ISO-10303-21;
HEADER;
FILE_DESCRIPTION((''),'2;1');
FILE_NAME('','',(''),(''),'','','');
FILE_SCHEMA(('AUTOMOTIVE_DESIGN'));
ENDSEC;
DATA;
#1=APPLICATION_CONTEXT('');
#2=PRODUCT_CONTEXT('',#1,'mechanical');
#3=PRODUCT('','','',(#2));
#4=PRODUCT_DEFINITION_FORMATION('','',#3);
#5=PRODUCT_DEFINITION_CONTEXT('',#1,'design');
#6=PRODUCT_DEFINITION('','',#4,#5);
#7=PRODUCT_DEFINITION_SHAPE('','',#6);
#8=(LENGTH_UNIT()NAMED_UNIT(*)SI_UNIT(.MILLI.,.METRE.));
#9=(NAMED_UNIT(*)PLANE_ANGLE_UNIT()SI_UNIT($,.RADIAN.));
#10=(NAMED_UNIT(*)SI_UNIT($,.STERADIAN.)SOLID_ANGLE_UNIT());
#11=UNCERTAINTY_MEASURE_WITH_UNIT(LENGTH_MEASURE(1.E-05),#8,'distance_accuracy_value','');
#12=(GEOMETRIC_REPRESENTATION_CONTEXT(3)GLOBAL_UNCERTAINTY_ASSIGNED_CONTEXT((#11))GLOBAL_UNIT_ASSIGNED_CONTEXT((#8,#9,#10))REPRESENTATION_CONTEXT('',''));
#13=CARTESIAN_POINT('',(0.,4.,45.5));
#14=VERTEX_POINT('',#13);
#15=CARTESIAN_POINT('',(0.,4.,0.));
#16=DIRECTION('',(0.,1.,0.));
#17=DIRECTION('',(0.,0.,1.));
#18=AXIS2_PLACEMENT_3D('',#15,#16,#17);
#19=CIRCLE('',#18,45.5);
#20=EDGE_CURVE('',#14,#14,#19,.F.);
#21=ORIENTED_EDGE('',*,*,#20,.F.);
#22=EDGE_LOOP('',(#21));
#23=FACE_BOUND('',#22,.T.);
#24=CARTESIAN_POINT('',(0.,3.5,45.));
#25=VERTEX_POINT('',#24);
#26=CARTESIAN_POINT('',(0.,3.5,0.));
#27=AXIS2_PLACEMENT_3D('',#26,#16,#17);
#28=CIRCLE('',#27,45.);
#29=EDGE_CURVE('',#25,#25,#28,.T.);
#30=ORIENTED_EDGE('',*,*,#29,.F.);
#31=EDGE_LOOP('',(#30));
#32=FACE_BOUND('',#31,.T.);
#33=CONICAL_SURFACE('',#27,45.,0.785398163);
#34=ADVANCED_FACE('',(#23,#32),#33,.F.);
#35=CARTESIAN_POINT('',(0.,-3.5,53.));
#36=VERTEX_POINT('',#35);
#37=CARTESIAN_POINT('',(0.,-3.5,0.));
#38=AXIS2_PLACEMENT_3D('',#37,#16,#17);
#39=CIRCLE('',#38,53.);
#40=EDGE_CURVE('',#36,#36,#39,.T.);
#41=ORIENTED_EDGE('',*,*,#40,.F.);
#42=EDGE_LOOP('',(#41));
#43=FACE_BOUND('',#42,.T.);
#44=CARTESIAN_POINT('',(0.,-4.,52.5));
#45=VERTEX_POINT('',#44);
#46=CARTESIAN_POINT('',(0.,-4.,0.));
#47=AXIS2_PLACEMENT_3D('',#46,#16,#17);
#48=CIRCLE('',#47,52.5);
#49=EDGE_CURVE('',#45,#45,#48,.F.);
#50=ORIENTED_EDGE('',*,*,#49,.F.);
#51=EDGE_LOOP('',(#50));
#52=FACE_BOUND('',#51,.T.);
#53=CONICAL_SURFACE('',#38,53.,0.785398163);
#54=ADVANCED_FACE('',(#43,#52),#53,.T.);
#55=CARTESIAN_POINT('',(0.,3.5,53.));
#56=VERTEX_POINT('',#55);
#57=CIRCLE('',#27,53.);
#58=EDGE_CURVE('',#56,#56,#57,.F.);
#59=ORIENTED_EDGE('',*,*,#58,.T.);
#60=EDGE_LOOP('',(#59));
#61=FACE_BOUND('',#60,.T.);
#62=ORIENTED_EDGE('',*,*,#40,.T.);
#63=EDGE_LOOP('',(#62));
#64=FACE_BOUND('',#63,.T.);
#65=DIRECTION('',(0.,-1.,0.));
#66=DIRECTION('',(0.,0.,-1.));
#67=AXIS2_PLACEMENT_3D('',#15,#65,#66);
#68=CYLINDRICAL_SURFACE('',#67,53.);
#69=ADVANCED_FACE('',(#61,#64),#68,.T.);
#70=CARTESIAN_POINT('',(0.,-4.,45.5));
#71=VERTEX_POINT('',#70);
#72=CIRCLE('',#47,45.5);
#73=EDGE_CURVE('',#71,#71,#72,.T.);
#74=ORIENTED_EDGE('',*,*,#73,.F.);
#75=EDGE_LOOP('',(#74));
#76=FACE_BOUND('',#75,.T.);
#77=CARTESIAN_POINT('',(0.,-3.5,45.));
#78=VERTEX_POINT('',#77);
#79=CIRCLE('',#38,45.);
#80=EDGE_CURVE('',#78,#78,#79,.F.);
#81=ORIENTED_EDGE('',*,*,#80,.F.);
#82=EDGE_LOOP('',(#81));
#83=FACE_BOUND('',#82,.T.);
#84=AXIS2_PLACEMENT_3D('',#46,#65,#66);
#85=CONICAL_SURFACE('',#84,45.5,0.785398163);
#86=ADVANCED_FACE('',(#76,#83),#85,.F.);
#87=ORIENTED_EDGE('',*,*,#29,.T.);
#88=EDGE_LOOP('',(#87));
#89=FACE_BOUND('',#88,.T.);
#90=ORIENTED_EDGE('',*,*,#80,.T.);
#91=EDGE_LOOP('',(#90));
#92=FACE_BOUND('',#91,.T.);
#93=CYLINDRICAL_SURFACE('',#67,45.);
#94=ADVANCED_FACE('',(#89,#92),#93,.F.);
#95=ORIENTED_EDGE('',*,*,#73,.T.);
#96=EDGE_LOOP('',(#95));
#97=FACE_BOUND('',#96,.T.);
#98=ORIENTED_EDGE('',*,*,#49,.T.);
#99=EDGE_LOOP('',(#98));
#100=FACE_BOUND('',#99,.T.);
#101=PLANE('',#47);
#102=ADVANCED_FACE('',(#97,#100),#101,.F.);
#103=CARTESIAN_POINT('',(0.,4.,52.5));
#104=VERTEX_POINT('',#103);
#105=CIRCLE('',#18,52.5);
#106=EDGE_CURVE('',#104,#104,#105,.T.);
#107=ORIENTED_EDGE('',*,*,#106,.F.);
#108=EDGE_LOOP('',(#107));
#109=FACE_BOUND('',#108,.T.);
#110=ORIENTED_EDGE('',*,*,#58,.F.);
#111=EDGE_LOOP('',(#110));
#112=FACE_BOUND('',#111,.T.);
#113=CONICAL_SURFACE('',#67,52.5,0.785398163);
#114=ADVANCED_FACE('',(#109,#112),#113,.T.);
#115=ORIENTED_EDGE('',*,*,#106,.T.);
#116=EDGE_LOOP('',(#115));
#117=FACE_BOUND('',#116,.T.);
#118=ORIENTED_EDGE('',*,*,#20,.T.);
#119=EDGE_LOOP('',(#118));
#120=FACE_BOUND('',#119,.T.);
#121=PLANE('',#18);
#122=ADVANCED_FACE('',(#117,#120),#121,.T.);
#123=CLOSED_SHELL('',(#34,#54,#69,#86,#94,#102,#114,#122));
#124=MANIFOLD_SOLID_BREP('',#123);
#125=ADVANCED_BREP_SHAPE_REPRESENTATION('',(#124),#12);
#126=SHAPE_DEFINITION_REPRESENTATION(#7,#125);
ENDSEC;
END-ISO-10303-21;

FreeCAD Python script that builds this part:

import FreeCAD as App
import Part
import Sketcher


def edges_at(feature, points):
    """Names of the edges that pass closest to the given points."""
    edges = feature.Shape.Edges
    near = lambda p: min(range(len(edges)), key=lambda i: edges[i].distToShape(Part.Vertex(*p))[0])
    return sorted({f"Edge{near(p) + 1}" for p in points})

doc = App.newDocument("Part")
body = doc.addObject("PartDesign::Body", "Body")

sketch1 = body.newObject("Sketcher::SketchObject", "Sketch")
sketch1.AttachmentSupport = (doc.getObject("XZ_Plane"), [""])
sketch1.MapMode = "FlatFace"
sketch1.addGeometry([
    Part.Circle(App.Vector(0, 0, 0), App.Vector(0, 0, 1), 53),
    Part.Circle(App.Vector(0, 0, 0), App.Vector(0, 0, 1), 45),
], False)
sketch1.addConstraint([
    Sketcher.Constraint("Coincident", 0, 3, -1, 1),
    Sketcher.Constraint("Coincident", 1, 3, -1, 1),
    Sketcher.Constraint("Diameter", 0, 106.0),
    Sketcher.Constraint("Diameter", 1, 90.0),
])
pad1 = body.newObject("PartDesign::Pad", "Pad")
pad1.Profile = sketch1
pad1.Length = 8
pad1.Midplane = True
doc.recompute()

chamfer = body.newObject("PartDesign::Chamfer", "Chamfer")
chamfer.Base = (pad1, edges_at(pad1, [
    (0, -4, -53),
    (0, 4, -53),
    (0, -4, -45),
    (0, 4, -45),
]))
chamfer.Size = 0.5

doc.recompute()
